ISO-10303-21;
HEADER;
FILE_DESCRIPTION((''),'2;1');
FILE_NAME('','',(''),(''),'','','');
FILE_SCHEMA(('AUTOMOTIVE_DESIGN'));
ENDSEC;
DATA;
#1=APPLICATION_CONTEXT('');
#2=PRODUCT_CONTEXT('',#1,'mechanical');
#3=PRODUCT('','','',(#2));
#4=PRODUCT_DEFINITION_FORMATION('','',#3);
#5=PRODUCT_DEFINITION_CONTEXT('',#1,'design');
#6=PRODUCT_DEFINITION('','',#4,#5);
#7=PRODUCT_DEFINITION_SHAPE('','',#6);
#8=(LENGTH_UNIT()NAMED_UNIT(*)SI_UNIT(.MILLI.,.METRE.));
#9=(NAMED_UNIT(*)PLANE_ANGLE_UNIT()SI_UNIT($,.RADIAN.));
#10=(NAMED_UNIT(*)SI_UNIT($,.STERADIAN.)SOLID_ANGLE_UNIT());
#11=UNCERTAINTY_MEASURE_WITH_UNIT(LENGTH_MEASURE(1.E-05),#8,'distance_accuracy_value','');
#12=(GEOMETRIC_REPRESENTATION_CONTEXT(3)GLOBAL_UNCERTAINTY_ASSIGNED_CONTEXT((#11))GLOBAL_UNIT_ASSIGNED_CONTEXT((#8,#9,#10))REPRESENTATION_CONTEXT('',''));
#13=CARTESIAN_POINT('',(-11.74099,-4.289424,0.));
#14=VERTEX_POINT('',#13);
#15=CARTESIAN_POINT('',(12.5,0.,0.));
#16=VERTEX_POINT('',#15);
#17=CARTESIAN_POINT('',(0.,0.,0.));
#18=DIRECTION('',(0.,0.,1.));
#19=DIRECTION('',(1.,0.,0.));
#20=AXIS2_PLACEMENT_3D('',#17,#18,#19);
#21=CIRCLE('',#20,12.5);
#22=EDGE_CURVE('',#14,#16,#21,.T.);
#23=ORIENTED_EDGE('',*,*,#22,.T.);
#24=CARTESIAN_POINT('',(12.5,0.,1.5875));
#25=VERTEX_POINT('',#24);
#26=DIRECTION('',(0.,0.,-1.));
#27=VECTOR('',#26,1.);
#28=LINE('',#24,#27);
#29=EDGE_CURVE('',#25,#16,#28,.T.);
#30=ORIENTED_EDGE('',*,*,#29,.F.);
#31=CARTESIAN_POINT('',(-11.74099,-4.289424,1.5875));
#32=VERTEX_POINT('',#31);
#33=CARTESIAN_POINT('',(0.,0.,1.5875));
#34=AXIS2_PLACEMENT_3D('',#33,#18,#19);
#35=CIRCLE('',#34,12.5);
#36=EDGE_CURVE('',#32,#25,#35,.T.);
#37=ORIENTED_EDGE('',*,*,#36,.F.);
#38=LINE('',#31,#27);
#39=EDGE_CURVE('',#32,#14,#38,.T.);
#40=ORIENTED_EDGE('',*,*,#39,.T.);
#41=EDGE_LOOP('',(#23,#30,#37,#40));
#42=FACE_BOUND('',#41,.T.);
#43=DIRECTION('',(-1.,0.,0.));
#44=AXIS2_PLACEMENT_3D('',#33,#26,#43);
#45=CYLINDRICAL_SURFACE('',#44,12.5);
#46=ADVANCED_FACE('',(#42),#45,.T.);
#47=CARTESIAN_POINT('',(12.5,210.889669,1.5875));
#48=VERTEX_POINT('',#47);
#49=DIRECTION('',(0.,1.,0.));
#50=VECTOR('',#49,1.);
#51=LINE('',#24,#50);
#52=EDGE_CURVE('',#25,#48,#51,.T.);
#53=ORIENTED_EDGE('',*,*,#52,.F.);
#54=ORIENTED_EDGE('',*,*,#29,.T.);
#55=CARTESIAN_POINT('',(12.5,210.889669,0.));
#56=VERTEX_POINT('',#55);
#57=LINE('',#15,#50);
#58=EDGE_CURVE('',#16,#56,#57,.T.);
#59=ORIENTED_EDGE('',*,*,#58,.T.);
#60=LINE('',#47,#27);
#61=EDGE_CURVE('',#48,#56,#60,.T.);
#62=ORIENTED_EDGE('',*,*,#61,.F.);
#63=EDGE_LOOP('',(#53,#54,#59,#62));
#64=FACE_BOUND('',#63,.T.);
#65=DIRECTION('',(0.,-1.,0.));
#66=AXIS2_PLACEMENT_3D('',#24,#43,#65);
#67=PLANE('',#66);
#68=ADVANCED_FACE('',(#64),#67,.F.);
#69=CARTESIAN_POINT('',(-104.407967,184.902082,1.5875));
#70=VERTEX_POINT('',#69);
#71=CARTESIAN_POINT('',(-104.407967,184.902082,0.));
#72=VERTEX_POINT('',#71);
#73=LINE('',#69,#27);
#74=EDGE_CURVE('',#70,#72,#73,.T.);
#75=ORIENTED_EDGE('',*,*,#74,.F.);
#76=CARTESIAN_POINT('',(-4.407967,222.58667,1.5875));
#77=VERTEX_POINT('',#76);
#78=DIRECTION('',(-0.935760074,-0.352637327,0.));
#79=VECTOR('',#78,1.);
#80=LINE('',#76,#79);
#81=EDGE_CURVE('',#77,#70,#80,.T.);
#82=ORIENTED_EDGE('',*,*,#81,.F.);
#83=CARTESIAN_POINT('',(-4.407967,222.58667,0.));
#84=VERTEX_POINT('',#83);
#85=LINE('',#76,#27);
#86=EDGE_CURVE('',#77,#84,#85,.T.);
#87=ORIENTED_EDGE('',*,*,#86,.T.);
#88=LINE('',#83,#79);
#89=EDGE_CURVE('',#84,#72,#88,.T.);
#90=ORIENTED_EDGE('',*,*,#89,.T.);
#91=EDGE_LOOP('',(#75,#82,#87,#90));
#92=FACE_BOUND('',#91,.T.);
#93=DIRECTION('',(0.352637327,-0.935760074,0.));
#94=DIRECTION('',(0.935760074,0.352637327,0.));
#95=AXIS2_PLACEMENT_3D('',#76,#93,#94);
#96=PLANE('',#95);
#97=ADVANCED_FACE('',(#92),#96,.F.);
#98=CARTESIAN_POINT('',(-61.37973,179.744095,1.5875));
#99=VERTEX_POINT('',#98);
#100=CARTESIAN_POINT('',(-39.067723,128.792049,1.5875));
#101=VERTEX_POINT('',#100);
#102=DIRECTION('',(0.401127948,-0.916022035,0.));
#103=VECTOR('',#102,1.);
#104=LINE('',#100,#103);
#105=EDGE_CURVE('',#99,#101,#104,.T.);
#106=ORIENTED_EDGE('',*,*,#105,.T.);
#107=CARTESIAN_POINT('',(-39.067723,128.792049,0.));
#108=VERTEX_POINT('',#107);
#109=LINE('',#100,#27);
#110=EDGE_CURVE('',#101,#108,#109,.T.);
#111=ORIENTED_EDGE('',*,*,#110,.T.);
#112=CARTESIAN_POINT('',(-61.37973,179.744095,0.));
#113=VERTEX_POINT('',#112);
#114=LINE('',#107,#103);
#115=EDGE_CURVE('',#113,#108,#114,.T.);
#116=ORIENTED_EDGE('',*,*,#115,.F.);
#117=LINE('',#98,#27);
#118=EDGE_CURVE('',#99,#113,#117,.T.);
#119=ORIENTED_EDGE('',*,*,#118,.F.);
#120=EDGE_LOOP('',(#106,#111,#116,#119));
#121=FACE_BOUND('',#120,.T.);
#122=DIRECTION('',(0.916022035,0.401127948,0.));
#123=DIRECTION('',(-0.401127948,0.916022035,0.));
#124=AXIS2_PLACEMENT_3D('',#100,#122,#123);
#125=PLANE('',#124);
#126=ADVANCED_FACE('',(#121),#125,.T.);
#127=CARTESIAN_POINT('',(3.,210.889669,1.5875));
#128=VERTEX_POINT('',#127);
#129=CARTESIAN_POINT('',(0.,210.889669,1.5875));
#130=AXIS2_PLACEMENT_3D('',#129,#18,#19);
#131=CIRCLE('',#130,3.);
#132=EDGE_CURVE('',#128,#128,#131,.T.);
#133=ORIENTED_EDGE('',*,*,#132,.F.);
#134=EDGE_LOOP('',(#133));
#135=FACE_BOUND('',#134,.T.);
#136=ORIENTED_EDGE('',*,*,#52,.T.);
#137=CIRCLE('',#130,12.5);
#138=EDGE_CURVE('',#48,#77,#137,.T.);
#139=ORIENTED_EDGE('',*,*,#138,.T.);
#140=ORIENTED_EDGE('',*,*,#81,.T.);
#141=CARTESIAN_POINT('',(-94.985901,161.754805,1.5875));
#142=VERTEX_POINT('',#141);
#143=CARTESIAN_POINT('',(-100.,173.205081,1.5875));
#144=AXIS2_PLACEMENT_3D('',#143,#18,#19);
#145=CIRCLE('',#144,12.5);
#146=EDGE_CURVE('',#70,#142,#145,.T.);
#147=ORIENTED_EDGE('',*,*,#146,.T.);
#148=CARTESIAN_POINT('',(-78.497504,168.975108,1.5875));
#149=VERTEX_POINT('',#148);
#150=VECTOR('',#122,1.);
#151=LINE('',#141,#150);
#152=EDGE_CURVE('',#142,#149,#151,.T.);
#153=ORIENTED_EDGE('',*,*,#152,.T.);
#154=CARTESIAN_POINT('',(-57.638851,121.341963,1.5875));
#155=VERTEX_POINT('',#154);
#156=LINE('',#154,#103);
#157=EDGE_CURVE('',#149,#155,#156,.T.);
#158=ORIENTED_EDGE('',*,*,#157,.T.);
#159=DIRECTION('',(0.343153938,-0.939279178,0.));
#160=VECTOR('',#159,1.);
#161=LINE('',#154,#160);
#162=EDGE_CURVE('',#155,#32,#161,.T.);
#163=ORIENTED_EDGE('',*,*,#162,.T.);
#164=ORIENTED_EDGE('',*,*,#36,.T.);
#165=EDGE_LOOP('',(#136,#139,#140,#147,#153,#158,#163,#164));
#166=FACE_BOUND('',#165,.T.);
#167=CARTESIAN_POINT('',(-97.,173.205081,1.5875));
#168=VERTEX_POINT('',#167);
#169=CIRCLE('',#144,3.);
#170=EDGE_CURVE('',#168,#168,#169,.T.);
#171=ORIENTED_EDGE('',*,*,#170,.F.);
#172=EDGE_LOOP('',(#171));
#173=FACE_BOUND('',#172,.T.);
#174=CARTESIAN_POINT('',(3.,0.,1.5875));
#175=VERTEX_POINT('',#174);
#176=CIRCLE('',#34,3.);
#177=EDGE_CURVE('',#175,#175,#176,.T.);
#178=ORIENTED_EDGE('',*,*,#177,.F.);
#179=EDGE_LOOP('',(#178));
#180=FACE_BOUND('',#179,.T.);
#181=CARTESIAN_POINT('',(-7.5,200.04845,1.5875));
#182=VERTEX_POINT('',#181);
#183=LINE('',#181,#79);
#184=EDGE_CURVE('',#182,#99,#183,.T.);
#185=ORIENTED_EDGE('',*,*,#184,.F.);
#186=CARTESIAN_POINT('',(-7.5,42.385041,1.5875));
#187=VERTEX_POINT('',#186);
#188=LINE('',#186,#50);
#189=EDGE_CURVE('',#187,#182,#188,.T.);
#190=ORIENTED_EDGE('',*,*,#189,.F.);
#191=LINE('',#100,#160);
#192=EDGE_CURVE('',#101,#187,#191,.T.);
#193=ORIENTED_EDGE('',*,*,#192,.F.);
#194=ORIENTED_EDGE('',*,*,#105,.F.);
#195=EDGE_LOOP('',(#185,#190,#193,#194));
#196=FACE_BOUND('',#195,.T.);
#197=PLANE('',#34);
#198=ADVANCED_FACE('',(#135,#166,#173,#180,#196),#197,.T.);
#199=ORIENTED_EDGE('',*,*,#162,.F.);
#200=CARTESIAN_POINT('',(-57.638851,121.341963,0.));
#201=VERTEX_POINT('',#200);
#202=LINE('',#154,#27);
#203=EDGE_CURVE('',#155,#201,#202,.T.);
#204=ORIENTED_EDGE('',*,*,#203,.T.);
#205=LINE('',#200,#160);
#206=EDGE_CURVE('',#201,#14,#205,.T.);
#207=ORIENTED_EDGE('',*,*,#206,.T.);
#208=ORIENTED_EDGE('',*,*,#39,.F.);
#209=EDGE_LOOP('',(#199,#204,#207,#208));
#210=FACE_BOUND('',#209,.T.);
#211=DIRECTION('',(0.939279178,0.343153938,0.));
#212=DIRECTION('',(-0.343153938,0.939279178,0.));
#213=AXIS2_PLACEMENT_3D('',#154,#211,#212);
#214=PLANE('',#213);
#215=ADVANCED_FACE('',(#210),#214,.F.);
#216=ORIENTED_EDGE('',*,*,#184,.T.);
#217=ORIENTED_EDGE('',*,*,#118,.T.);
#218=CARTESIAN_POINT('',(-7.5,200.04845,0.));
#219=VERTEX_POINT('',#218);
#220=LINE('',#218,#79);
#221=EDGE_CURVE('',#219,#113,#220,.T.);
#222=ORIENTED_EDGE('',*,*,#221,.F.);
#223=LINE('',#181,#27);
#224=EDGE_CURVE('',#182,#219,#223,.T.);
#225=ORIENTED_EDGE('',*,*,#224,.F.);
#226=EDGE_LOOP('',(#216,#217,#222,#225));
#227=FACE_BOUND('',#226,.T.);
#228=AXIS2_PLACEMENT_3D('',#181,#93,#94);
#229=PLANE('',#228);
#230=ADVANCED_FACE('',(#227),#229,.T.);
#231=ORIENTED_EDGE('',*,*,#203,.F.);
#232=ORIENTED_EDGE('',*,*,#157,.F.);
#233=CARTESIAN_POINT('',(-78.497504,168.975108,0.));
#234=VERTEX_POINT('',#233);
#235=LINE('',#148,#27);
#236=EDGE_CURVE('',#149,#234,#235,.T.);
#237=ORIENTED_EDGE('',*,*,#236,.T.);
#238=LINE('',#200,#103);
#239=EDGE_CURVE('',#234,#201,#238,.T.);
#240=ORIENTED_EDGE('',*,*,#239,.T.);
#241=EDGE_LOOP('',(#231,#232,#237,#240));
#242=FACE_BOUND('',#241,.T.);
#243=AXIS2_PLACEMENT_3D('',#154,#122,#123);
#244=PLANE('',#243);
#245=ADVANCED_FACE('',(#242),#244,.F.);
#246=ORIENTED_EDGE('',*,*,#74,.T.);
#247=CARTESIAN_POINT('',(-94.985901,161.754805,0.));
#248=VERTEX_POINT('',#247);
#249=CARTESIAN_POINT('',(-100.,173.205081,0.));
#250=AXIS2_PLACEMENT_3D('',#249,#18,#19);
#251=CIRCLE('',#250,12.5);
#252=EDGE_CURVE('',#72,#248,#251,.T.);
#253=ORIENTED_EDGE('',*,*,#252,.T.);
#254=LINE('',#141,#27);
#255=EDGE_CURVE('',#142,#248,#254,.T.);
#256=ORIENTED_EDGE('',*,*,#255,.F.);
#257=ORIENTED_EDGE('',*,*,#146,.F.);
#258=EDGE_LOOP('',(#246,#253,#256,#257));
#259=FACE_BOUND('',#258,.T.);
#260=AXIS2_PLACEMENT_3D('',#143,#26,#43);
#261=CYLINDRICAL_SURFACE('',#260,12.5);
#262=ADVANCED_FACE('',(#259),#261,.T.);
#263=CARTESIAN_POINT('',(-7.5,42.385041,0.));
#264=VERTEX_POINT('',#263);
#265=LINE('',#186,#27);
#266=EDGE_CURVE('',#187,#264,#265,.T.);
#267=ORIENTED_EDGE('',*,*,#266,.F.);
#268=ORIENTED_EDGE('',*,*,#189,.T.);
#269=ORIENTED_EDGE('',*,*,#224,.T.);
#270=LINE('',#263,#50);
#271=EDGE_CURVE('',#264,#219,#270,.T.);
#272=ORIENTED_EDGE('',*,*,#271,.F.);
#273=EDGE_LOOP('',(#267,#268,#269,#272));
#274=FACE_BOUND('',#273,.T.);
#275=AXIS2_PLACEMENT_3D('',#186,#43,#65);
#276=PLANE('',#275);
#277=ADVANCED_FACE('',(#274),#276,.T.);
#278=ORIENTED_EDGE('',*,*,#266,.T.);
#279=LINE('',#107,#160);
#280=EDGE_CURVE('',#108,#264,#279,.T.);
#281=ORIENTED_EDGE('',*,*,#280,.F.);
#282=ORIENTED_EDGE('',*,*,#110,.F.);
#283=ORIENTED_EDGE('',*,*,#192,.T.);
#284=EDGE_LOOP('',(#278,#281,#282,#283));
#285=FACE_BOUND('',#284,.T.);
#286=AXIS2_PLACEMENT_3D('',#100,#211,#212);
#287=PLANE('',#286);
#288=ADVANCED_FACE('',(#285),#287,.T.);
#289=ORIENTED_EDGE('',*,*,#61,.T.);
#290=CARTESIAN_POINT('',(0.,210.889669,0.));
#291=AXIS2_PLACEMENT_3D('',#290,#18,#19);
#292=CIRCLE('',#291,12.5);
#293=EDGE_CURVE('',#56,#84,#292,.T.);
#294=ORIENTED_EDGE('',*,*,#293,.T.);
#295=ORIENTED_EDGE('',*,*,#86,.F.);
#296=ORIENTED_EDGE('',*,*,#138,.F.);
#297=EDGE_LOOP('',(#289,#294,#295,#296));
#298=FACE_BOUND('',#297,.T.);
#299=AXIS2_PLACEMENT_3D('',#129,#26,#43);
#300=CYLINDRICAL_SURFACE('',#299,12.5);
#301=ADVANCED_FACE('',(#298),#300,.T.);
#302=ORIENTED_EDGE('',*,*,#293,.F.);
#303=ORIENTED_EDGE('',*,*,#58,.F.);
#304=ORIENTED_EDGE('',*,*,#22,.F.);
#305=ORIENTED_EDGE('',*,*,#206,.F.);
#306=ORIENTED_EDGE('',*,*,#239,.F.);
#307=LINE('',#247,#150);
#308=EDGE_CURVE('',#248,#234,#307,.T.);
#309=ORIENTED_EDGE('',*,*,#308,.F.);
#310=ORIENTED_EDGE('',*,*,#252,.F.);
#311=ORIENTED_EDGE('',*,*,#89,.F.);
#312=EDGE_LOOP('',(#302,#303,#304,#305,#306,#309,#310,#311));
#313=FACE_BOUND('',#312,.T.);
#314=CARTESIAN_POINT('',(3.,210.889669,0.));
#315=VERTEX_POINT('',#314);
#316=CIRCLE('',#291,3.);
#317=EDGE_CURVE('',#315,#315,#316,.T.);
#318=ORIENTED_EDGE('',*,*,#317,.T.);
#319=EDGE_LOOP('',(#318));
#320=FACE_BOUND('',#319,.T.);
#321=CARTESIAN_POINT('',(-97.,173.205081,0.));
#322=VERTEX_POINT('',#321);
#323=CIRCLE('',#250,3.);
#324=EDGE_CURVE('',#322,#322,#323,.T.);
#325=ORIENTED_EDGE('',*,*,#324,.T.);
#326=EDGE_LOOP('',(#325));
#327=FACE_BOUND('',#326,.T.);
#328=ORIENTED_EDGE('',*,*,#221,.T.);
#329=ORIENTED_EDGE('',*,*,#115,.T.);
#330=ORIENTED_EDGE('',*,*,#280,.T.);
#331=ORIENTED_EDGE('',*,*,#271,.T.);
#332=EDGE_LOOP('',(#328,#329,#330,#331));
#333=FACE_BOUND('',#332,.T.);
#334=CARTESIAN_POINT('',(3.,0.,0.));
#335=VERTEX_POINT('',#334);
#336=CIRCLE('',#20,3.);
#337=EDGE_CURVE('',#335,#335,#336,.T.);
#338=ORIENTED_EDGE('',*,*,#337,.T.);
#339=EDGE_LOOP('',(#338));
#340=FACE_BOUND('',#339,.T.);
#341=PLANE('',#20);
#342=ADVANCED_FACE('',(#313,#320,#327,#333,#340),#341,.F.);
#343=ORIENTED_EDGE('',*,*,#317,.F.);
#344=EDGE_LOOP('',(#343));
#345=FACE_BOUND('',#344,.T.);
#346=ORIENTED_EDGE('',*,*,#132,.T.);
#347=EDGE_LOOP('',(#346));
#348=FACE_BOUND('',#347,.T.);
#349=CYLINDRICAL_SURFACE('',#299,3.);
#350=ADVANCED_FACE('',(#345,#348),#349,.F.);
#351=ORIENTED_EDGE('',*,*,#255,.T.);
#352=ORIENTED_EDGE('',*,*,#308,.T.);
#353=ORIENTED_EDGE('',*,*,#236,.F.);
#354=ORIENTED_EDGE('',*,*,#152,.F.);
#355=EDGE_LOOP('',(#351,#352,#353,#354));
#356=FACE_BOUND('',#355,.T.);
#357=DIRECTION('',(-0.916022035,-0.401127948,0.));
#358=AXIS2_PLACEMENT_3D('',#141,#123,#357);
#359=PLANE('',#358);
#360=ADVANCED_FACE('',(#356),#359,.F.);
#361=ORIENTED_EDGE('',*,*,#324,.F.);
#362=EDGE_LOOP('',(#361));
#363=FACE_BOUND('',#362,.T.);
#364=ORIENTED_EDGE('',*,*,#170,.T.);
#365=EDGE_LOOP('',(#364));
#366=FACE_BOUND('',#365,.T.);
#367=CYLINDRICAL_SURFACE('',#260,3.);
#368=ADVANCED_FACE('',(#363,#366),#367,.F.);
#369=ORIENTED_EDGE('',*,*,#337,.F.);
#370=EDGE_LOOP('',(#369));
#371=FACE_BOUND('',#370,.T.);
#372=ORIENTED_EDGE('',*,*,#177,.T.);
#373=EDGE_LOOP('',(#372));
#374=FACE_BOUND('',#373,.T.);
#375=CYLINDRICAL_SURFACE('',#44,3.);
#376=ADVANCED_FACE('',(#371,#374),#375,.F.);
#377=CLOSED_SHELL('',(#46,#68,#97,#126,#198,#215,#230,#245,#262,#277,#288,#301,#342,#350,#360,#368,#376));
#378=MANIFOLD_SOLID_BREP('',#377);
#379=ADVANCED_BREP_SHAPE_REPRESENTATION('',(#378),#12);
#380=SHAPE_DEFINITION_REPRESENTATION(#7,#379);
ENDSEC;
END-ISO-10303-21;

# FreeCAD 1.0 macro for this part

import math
import FreeCAD as App
import Part
import Sketcher
from FreeCAD import Vector
Q = App.Units.Quantity


def add_polygon(sketch, points):
    """Adds a closed chain of lines whose ends are joined by coincident constraints."""
    first, n = sketch.GeometryCount, len(points)
    for a, b in zip(points, points[1:] + points[:1]):
        sketch.addGeometry(Part.LineSegment(App.Vector(*a, 0), App.Vector(*b, 0)), False)
    for i in range(n):
        sketch.addConstraint(Sketcher.Constraint("Coincident", first + i, 2, first + (i + 1) % n, 1))

doc = App.newDocument("Part")
body = doc.addObject("PartDesign::Body", "Body")

# Sketch on XY plane
sketch1 = body.newObject("Sketcher::SketchObject", "Sketch")
sketch1.AttachmentSupport = (doc.getObject("XY_Plane"), [""])
sketch1.MapMode = "FlatFace"
sketch1.addGeometry(Part.LineSegment(Vector(12.5, 0, 0), Vector(12.5, 210.9, 0)), False)  # 0
sketch1.addGeometry(Part.ArcOfCircle(Part.Circle(Vector(0, 210.9, 0), Vector(0, 0, 1), 12.5), math.radians(0), math.radians(111)), False)  # 1
sketch1.addGeometry(Part.LineSegment(Vector(-4.4, 222.6, 0), Vector(-104.4, 184.9, 0)), False)  # 2
sketch1.addGeometry(Part.ArcOfCircle(Part.Circle(Vector(-100, 173.2, 0), Vector(0, 0, 1), 12.5), math.radians(111), math.radians(294)), False)  # 3
sketch1.addGeometry(Part.LineSegment(Vector(-95, 161.8, 0), Vector(-78.5, 169, 0)), False)  # 4
sketch1.addGeometry(Part.LineSegment(Vector(-78.5, 169, 0), Vector(-57.6, 121.3, 0)), False)  # 5
sketch1.addGeometry(Part.LineSegment(Vector(-57.6, 121.3, 0), Vector(-11.7, -4.3, 0)), False)  # 6
sketch1.addGeometry(Part.ArcOfCircle(Part.Circle(Vector(0, 0, 0), Vector(0, 0, 1), 12.5), math.radians(-160), math.radians(0)), False)  # 7
sketch1.addGeometry(Part.Circle(Vector(0, 0, 0), Vector(0, 0, 1), 3), False)  # 8
sketch1.addGeometry(Part.Circle(Vector(-100, 173.2, 0), Vector(0, 0, 1), 3), False)  # 9
add_polygon(sketch1, [(-7.5, 42.4), (-39.1, 128.8), (-61.4, 179.7), (-7.5, 200)])  # lines 10-13
sketch1.addGeometry(Part.Circle(Vector(0, 210.9, 0), Vector(0, 0, 1), 3), False)  # 14
sketch1.addConstraint([
    Sketcher.Constraint("Tangent", 0, 2, 1, 1),
    Sketcher.Constraint("Tangent", 1, 2, 2, 1),
    Sketcher.Constraint("Tangent", 2, 2, 3, 1),
    Sketcher.Constraint("Tangent", 3, 2, 4, 1),
    Sketcher.Constraint("Coincident", 4, 2, 5, 1),
    Sketcher.Constraint("Coincident", 5, 2, 6, 1),
    Sketcher.Constraint("Tangent", 6, 2, 7, 1),
    Sketcher.Constraint("Tangent", 7, 2, 0, 1),
    Sketcher.Constraint("Vertical", 0),
    Sketcher.Constraint("Vertical", 13),
    Sketcher.Constraint("Coincident", 7, 3, -1, 1),
    Sketcher.Constraint("Coincident", 8, 3, -1, 1),
    Sketcher.Constraint("Coincident", 9, 3, 3, 3),
    Sketcher.Constraint("Coincident", 14, 3, 1, 3),
    Sketcher.Constraint("Equal", 1, 3),
    Sketcher.Constraint("Equal", 3, 7),
    Sketcher.Constraint("Equal", 8, 9),
    Sketcher.Constraint("Equal", 9, 14),
    Sketcher.Constraint("Perpendicular", 4, 5),
    Sketcher.Constraint("Parallel", 6, 10),
    Sketcher.Constraint("Parallel", 5, 11),
    Sketcher.Constraint("Parallel", 2, 12),
    Sketcher.Constraint("Diameter", 8, Q("6 mm")),
    Sketcher.Constraint("Radius", 1, Q("12.5 mm")),
    Sketcher.Constraint("Distance", 4, Q("18 mm")),
    Sketcher.Constraint("Distance", 5, Q("52 mm")),
    Sketcher.Constraint("DistanceX", 3, 3, -1, 1, Q("100 mm")),
    Sketcher.Constraint("DistanceX", 12, 2, 0, 2, Q("20 mm")),
    Sketcher.Constraint("Distance", 2, Q("106.865 mm")),
    Sketcher.Constraint("DistanceY", 0, 1, 0, 2, Q("210.889669 mm")),
    Sketcher.Constraint("DistanceY", 13, 2, 13, 1, Q("157.663408 mm")),
    Sketcher.Constraint("DistanceX", 3, 2, -1, 1, Q("94.985901 mm")),
    Sketcher.Constraint("Distance", 10, Q("91.992891 mm")),
    Sketcher.Constraint("DistanceY", -1, 1, 10, 2, Q("128.792049 mm")),
])
pad1 = body.newObject("PartDesign::Pad", "Pad")
pad1.Profile = sketch1
pad1.Length = 1.5875

doc.recompute()
